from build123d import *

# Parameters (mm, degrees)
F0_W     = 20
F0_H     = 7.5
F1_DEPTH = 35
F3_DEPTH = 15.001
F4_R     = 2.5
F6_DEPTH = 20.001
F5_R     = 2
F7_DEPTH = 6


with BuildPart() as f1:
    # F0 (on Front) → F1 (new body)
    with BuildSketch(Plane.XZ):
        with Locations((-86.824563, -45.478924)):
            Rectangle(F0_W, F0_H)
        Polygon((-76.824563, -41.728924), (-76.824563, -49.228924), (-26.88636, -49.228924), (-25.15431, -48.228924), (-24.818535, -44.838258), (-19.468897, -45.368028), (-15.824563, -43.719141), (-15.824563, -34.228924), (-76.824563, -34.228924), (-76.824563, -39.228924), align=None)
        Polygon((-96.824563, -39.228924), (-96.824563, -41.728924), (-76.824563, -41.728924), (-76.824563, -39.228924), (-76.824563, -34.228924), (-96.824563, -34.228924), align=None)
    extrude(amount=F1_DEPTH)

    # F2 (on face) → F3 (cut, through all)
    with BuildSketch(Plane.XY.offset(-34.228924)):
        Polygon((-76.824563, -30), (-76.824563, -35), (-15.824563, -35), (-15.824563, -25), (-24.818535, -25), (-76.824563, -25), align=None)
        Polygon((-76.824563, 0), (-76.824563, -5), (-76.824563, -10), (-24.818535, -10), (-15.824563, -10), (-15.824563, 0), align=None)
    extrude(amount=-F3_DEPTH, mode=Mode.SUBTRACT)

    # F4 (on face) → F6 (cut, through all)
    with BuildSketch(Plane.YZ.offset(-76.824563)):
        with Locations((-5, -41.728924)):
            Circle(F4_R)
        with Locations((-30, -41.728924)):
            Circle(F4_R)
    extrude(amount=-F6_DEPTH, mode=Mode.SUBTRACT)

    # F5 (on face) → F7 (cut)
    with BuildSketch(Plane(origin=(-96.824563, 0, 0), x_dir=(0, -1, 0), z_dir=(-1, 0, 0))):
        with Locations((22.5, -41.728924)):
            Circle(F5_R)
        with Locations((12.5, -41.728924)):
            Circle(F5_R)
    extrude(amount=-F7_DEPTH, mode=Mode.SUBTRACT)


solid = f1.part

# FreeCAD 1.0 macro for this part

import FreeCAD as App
import Part
import Sketcher
Q = App.Units.Quantity


def add_polygon(sketch, points):
    """Adds a closed chain of lines whose ends are joined by coincident constraints."""
    first, n = sketch.GeometryCount, len(points)
    for a, b in zip(points, points[1:] + points[:1]):
        sketch.addGeometry(Part.LineSegment(App.Vector(*a, 0), App.Vector(*b, 0)), False)
    for i in range(n):
        sketch.addConstraint(Sketcher.Constraint("Coincident", first + i, 2, first + (i + 1) % n, 1))

doc = App.newDocument("Part")
body = doc.addObject("PartDesign::Body", "Body")

# Sketch on XZ plane
sketch1 = body.newObject("Sketcher::SketchObject", "Sketch")
sketch1.AttachmentSupport = (doc.getObject("XZ_Plane"), [""])
sketch1.MapMode = "FlatFace"
add_polygon(sketch1, [(-96.8, -49.2), (-26.9, -49.2), (-25.2, -48.2), (-24.8, -44.8), (-19.5, -45.4), (-15.8, -43.7), (-15.8, -34.2), (-96.8, -34.2)])  # lines 0-7
sketch1.addConstraint([
    Sketcher.Constraint("Horizontal", 0),
    Sketcher.Constraint("Vertical", 5),
    Sketcher.Constraint("Horizontal", 6),
    Sketcher.Constraint("Vertical", 7),
    Sketcher.Constraint("Perpendicular", 2, 3),
    Sketcher.Constraint("DistanceX", 6, 2, 6, 1, Q("81 mm")),
    Sketcher.Constraint("DistanceY", 7, 2, 7, 1, Q("15 mm")),
    Sketcher.Constraint("Angle", 1, Q("30.000012 deg")),
    Sketcher.Constraint("Distance", 1, Q("1.999999 mm")),
    Sketcher.Constraint("Distance", 4, Q("4 mm")),
    Sketcher.Constraint("Distance", 2, Q("3.407251 mm")),
    Sketcher.Constraint("DistanceX", 0, 1, 0, 2, Q("69.938203 mm")),
    Sketcher.Constraint("DistanceY", 5, 1, 5, 2, Q("9.490217 mm")),
    Sketcher.Constraint("DistanceX", 0, 2, -1, 1, Q("26.88636 mm")),
    Sketcher.Constraint("DistanceY", 2, 2, -1, 1, Q("44.838258 mm")),
    Sketcher.Constraint("DistanceY", 3, 2, -1, 1, Q("45.368028 mm")),
])
pad1 = body.newObject("PartDesign::Pad", "Pad")
pad1.Profile = sketch1
pad1.Length = 35

# Sketch on XY plane
sketch2 = body.newObject("Sketcher::SketchObject", "Sketch001")
sketch2.AttachmentSupport = (doc.getObject("XY_Plane"), [""])
sketch2.MapMode = "FlatFace"
sketch2.AttachmentOffset = App.Placement(App.Vector(0, 0, -34.228924), App.Rotation())
add_polygon(sketch2, [(-77, -35), (-16, -35), (-16, -25), (-77, -25)])  # lines 0-3
add_polygon(sketch2, [(-77, 0), (-77, -10), (-16, -10), (-16, 0)])  # lines 4-7
sketch2.addConstraint([
    Sketcher.Constraint("Horizontal", 0),
    Sketcher.Constraint("Vertical", 1),
    Sketcher.Constraint("Horizontal", 2),
    Sketcher.Constraint("Vertical", 3),
    Sketcher.Constraint("Vertical", 4),
    Sketcher.Constraint("Horizontal", 5),
    Sketcher.Constraint("Vertical", 6),
    Sketcher.Constraint("Horizontal", 7),
    Sketcher.Constraint("PointOnObject", 6, 2, -1),
    Sketcher.Constraint("Vertical", 3, 2, 4, 2),
    Sketcher.Constraint("Vertical", 1, 2, 5, 2),
    Sketcher.Constraint("Equal", 3, 4),
    Sketcher.Constraint("DistanceX", 0, 1, 0, 2, Q("61 mm")),
    Sketcher.Constraint("DistanceY", 1, 1, 1, 2, Q("10 mm")),
    Sketcher.Constraint("DistanceY", 0, 2, -1, 1, Q("35 mm")),
    Sketcher.Constraint("DistanceX", 0, 2, -1, 1, Q("15.824563 mm")),
])
pocket1 = body.newObject("PartDesign::Pocket", "Pocket")
pocket1.Profile = sketch2
pocket1.Type = "ThroughAll"

# Sketch on YZ plane
sketch3 = body.newObject("Sketcher::SketchObject", "Sketch002")
sketch3.AttachmentSupport = (doc.getObject("YZ_Plane"), [""])
sketch3.MapMode = "FlatFace"
sketch3.AttachmentOffset = App.Placement(App.Vector(0, 0, -76.824563), App.Rotation())
sketch3.addGeometry([
    Part.Circle(App.Vector(-5, -41.7, 0), App.Vector(0, 0, 1), 2.5),
    Part.Circle(App.Vector(-30, -41.7, 0), App.Vector(0, 0, 1), 2.5),
], False)
sketch3.addConstraint([
    Sketcher.Constraint("Equal", 0, 1),
    Sketcher.Constraint("Horizontal", 0, 3, 1, 3),
    Sketcher.Constraint("Diameter", 0, Q("5 mm")),
    Sketcher.Constraint("DistanceX", 0, 3, -1, 1, Q("5 mm")),
    Sketcher.Constraint("DistanceX", 1, 3, -1, 1, Q("30 mm")),
    Sketcher.Constraint("DistanceY", 0, 3, -1, 1, Q("41.728924 mm")),
])
pocket2 = body.newObject("PartDesign::Pocket", "Pocket001")
pocket2.Profile = sketch3
pocket2.Type = "ThroughAll"

# Sketch on YZ plane
sketch4 = body.newObject("Sketcher::SketchObject", "Sketch003")
sketch4.AttachmentSupport = (doc.getObject("YZ_Plane"), [""])
sketch4.MapMode = "FlatFace"
sketch4.AttachmentOffset = App.Placement(App.Vector(0, 0, -96.824563), App.Rotation())
sketch4.addGeometry([
    Part.Circle(App.Vector(-22.5, -41.7, 0), App.Vector(0, 0, 1), 2),
    Part.Circle(App.Vector(-12.5, -41.7, 0), App.Vector(0, 0, 1), 2),
], False)
sketch4.addConstraint([
    Sketcher.Constraint("Equal", 0, 1),
    Sketcher.Constraint("Horizontal", 0, 3, 1, 3),
    Sketcher.Constraint("Diameter", 0, Q("4 mm")),
    Sketcher.Constraint("DistanceX", 0, 3, 1, 3, Q("10 mm")),
    Sketcher.Constraint("DistanceX", 0, 3, -1, 1, Q("22.5 mm")),
    Sketcher.Constraint("DistanceY", 0, 3, -1, 1, Q("41.728924 mm")),
])
pocket3 = body.newObject("PartDesign::Pocket", "Pocket002")
pocket3.Profile = sketch4
pocket3.Length = 6
pocket3.Reversed = True

doc.recompute()
